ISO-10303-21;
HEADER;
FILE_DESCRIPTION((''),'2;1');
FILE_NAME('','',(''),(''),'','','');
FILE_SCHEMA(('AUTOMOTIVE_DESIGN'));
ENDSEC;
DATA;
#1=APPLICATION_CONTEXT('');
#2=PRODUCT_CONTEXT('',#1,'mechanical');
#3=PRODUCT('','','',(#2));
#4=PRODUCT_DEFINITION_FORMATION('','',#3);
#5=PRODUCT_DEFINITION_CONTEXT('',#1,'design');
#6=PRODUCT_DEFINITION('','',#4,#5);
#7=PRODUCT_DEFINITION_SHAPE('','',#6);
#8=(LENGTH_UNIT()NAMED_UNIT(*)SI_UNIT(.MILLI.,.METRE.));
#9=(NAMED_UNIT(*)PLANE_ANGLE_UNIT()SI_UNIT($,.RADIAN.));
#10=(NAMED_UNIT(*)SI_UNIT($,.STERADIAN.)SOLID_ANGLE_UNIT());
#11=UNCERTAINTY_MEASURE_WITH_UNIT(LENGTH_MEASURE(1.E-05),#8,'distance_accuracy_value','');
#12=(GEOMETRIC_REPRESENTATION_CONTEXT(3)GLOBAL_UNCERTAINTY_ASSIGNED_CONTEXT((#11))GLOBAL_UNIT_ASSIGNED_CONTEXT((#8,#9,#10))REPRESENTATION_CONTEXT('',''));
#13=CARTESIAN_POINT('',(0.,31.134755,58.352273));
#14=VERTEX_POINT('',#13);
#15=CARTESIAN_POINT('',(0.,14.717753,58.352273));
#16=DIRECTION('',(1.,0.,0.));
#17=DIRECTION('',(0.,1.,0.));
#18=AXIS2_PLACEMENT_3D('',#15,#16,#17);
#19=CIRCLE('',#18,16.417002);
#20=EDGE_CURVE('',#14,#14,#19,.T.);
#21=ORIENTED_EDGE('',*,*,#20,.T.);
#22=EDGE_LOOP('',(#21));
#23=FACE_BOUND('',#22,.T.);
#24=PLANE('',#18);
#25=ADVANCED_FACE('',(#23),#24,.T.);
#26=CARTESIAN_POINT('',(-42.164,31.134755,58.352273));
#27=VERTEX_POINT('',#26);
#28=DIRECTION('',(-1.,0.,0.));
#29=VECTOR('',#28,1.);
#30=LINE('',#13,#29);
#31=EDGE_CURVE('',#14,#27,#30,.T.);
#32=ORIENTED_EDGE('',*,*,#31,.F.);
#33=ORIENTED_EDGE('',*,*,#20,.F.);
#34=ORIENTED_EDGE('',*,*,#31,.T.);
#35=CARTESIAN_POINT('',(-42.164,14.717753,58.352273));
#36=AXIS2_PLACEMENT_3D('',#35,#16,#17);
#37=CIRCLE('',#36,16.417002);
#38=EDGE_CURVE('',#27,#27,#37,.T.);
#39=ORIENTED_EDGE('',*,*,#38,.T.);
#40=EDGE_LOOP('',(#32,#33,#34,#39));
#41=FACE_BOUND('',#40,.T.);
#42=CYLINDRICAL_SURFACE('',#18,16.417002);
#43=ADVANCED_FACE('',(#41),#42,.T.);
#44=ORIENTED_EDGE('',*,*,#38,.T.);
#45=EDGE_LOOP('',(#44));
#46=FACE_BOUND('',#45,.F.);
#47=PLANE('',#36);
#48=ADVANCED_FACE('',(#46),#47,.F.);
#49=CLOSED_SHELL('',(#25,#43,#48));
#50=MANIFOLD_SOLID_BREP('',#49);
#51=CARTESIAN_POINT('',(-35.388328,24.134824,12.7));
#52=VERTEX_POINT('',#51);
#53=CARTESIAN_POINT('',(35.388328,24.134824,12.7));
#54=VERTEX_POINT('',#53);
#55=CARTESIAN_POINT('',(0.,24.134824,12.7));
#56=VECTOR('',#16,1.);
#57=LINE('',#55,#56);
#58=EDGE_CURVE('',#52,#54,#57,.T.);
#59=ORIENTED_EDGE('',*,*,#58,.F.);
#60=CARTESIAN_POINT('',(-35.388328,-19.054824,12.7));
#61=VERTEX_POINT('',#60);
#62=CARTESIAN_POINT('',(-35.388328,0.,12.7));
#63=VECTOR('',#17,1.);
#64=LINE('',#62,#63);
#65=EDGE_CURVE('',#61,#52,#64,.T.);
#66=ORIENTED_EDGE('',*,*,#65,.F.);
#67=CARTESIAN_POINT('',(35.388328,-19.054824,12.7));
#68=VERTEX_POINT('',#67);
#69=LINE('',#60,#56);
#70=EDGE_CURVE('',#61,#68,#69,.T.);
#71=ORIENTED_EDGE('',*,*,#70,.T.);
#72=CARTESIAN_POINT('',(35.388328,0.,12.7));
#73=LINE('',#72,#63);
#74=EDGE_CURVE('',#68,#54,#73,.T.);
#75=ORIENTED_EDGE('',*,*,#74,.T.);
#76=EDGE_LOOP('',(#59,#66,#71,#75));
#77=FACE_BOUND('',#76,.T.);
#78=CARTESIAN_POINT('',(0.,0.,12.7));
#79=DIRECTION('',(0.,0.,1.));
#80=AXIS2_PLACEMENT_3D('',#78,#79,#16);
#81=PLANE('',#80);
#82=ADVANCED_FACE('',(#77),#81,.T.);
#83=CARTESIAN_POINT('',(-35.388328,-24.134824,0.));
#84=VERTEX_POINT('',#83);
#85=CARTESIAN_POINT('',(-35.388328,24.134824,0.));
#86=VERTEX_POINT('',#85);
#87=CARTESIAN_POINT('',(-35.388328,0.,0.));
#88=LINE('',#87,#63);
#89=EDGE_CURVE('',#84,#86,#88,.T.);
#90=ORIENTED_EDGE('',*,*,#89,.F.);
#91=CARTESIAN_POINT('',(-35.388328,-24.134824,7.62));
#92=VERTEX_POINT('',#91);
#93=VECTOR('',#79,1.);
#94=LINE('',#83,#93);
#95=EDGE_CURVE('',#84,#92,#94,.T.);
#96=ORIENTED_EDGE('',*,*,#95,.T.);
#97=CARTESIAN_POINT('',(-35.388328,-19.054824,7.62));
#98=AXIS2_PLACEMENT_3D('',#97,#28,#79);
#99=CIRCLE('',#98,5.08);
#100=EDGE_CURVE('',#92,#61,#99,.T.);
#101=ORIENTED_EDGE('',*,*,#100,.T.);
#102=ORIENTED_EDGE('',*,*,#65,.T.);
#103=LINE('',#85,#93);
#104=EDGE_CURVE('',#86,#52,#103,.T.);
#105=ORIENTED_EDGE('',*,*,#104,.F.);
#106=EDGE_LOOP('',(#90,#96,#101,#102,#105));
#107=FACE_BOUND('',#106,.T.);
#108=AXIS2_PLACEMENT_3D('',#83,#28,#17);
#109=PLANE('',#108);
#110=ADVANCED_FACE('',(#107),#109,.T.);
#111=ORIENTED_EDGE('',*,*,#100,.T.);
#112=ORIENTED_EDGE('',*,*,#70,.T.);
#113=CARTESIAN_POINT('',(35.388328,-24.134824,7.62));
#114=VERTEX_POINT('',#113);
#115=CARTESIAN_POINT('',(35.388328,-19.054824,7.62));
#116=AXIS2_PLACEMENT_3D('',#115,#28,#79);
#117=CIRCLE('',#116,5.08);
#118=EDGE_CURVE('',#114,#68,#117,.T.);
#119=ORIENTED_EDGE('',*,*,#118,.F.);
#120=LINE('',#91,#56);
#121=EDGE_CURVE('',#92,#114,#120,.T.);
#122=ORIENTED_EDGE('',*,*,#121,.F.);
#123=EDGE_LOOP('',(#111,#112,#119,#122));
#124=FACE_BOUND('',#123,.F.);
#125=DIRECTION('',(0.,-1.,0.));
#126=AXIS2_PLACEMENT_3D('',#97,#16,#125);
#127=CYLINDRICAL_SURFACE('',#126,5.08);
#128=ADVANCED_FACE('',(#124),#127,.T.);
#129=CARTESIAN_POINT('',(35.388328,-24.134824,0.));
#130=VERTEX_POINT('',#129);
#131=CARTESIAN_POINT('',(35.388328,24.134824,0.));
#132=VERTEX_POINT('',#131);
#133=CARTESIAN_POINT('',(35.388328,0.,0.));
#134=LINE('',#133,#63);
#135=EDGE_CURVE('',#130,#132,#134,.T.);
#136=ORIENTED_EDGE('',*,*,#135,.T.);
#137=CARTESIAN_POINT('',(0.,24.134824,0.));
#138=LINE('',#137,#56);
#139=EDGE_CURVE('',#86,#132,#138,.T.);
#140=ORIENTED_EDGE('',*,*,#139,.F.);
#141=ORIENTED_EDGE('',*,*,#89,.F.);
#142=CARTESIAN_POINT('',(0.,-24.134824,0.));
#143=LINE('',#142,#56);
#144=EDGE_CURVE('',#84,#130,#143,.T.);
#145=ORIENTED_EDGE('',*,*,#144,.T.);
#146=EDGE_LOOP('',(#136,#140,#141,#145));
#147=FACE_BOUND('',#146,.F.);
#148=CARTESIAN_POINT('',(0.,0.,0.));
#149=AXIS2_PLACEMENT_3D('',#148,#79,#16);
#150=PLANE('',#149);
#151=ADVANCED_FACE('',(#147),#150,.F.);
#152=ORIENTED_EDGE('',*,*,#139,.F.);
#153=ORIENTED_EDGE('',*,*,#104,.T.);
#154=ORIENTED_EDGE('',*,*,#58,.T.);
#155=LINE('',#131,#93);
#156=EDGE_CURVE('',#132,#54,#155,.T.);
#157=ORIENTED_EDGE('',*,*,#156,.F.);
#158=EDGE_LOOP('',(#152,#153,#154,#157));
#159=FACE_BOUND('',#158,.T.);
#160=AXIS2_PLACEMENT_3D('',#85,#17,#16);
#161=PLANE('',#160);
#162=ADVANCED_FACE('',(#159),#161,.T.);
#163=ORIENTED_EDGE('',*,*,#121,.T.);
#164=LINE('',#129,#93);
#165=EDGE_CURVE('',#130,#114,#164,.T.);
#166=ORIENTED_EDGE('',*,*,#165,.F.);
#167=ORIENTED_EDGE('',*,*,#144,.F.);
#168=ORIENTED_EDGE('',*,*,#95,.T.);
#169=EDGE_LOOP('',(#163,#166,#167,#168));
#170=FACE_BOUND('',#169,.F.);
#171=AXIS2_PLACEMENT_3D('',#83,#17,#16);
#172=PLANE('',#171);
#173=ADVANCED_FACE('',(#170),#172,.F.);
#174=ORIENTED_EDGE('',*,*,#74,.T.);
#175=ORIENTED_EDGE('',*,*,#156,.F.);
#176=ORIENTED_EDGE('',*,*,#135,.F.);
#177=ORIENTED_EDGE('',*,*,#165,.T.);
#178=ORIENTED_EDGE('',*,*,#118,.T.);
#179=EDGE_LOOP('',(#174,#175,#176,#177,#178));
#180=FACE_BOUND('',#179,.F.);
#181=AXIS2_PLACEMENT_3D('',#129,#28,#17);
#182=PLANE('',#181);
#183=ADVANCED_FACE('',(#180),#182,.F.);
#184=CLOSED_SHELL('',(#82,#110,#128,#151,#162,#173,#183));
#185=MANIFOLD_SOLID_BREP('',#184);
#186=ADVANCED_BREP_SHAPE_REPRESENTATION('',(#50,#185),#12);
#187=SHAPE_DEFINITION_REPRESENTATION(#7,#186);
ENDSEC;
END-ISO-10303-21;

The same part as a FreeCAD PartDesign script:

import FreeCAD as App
import Part
import Sketcher
from FreeCAD import Vector
Q = App.Units.Quantity


def edges_at(feature, points):
    """Names of the edges that pass closest to the given points."""
    edges = feature.Shape.Edges
    near = lambda p: min(range(len(edges)), key=lambda i: edges[i].distToShape(Part.Vertex(*p))[0])
    return sorted({f"Edge{near(p) + 1}" for p in points})


def add_polygon(sketch, points):
    """Adds a closed chain of lines whose ends are joined by coincident constraints."""
    first, n = sketch.GeometryCount, len(points)
    for a, b in zip(points, points[1:] + points[:1]):
        sketch.addGeometry(Part.LineSegment(App.Vector(*a, 0), App.Vector(*b, 0)), False)
    for i in range(n):
        sketch.addConstraint(Sketcher.Constraint("Coincident", first + i, 2, first + (i + 1) % n, 1))

doc = App.newDocument("Part")
body = doc.addObject("PartDesign::Body", "Body")

# Sketch on XY plane
sketch1 = body.newObject("Sketcher::SketchObject", "Sketch")
sketch1.AttachmentSupport = (doc.getObject("XY_Plane"), [""])
sketch1.MapMode = "FlatFace"
add_polygon(sketch1, [(-35, 24), (-35, -24), (35, -24), (35, 24)])  # lines 0-3
sketch1.addConstraint([
    Sketcher.Constraint("Vertical", 0),
    Sketcher.Constraint("Horizontal", 1),
    Sketcher.Constraint("Vertical", 2),
    Sketcher.Constraint("Horizontal", 3),
    Sketcher.Constraint("Symmetric", 0, 2, 2, 2, -1, 1),
    Sketcher.Constraint("DistanceX", 1, 1, 1, 2, 70.776656),
    Sketcher.Constraint("DistanceY", 0, 2, 0, 1, 48.269648),
])
pad1 = body.newObject("PartDesign::Pad", "Pad")
pad1.Profile = sketch1
pad1.Length = Q("0.5 in")
doc.recompute()

fillet = body.newObject("PartDesign::Fillet", "Fillet")
fillet.Base = (pad1, edges_at(pad1, [(0, -24.135, 12.7)]))
fillet.Radius = Q("0.2 in")
body2 = doc.addObject("PartDesign::Body", "Body001")

# Sketch on YZ plane
sketch2 = body2.newObject("Sketcher::SketchObject", "Sketch001")
sketch2.AttachmentSupport = (doc.getObject("YZ_Plane001"), [""])
sketch2.MapMode = "FlatFace"
sketch2.addGeometry(Part.Circle(Vector(15, 58, 0), Vector(0, 0, 1), 16), False)
sketch2.addConstraint([
    Sketcher.Constraint("Diameter", 0, 32.834004),
    Sketcher.Constraint("DistanceX", -1, 1, 0, 3, 14.717753),
    Sketcher.Constraint("DistanceY", -1, 1, 0, 3, 58.352273),
])
pad2 = body2.newObject("PartDesign::Pad", "Pad001")
pad2.Profile = sketch2
pad2.Length = Q("1.66 in")
pad2.Reversed = True

doc.recompute()
